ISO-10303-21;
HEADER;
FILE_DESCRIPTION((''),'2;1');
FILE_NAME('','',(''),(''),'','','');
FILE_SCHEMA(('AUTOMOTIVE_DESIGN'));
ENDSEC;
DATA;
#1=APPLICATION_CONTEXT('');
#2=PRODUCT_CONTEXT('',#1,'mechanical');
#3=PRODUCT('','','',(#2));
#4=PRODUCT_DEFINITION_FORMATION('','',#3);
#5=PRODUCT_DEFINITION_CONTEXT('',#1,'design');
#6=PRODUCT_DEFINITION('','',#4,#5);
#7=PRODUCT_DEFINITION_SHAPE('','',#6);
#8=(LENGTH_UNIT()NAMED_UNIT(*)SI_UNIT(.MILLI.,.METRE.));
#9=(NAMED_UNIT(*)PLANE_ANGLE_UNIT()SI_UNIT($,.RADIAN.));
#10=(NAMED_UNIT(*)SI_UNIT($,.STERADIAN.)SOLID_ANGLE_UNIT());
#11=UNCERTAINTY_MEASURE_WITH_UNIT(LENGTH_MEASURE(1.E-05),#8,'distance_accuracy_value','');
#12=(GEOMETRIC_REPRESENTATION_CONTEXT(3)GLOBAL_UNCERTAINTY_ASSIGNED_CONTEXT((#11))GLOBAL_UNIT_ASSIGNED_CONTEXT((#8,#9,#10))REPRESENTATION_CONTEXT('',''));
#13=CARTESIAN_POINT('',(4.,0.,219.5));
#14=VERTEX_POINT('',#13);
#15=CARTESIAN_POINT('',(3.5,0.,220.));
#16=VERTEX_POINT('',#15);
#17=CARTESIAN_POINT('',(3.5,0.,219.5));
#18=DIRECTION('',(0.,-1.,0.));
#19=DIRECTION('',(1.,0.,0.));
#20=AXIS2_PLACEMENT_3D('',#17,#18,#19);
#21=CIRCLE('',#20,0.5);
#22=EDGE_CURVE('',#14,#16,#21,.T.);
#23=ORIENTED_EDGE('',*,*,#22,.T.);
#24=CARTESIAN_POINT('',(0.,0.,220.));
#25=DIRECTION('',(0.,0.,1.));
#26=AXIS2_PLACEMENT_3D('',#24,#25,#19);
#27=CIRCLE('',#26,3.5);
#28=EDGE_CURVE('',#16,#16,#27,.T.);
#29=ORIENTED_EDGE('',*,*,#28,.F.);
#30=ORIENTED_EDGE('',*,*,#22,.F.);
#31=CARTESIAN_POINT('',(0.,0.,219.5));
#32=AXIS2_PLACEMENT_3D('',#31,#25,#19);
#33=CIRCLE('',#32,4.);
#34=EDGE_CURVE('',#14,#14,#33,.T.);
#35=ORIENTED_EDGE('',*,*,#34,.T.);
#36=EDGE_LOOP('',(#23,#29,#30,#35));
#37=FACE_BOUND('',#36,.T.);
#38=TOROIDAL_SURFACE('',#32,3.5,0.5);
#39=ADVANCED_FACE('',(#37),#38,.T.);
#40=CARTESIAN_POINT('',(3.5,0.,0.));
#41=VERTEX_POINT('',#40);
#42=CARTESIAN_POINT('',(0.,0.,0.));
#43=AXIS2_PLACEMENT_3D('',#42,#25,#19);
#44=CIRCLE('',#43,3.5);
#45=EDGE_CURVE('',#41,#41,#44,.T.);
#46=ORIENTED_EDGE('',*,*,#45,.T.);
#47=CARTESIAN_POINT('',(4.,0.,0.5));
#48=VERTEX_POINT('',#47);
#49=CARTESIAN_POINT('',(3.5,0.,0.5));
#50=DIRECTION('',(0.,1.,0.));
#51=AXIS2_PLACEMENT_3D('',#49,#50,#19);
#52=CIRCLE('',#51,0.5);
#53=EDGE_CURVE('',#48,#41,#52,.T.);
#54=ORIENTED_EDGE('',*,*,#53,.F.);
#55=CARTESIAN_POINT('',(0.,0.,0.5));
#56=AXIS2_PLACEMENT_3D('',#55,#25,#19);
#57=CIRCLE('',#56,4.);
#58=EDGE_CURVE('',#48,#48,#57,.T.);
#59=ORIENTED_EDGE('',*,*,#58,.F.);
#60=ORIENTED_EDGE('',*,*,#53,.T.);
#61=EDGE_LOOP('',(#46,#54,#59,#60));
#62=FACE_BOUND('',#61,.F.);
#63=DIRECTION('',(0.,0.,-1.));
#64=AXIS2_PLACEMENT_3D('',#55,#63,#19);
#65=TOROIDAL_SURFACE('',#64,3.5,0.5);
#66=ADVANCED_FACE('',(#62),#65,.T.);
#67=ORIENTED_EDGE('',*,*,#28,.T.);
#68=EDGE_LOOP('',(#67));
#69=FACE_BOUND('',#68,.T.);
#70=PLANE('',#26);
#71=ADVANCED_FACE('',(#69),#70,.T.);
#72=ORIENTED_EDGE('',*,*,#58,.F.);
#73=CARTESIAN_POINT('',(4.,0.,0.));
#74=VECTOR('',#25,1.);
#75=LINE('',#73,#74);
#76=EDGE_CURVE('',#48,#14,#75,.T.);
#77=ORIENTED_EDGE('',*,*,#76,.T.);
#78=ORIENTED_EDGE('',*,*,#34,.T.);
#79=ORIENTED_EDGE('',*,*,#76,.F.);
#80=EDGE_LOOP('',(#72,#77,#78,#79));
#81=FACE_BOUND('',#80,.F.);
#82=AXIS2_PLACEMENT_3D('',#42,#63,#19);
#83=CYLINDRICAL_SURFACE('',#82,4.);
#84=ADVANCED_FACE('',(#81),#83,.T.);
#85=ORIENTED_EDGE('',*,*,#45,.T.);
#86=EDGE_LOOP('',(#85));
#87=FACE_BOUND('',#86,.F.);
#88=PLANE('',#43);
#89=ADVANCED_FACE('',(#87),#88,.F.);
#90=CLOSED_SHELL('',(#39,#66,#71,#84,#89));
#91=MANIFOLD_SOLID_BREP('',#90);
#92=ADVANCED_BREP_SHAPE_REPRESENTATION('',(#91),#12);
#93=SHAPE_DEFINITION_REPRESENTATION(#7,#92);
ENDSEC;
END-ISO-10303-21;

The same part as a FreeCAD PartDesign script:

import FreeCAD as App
import Part
import Sketcher

V = App.Vector


def edges_at(feature, points):
    """Names of the edges that pass closest to the given points."""
    edges = feature.Shape.Edges
    near = lambda p: min(range(len(edges)), key=lambda i: edges[i].distToShape(Part.Vertex(*p))[0])
    return sorted({f"Edge{near(p) + 1}" for p in points})

doc = App.newDocument("Part")
params = doc.addObject("Spreadsheet::Sheet", "Params")
for row, (alias, value) in enumerate([
    ("sketch1_diameter", "8 mm"),
    ("pad1_length", "220 mm"),
    ("fillet_radius", "0.5 mm"),
], start=1):
    params.set(f"A{row}", alias)
    params.set(f"B{row}", "=" + value)
    params.setAlias(f"B{row}", alias)

body = doc.addObject("PartDesign::Body", "Body")

# Sketch on XY plane
sketch1 = doc.addObject("Sketcher::SketchObject", "Sketch")
body.addObject(sketch1)
sketch1.AttachmentSupport = (doc.XY_Plane, [""])
sketch1.MapMode = "FlatFace"
sketch1.addGeometry(Part.Circle(V(0, 0, 0), V(0, 0, 1), 4), False)
sketch1.addConstraint([
    Sketcher.Constraint("Coincident", 0, 3, -1, 1),
    Sketcher.Constraint("Diameter", 0, 8.0),
])
sketch1.setExpression("Constraints[1]", "Params.sketch1_diameter")
pad1 = doc.addObject("PartDesign::Pad", "Pad")
body.addObject(pad1)
pad1.Profile = sketch1
pad1.setExpression("Length", "Params.pad1_length")
doc.recompute()

fillet = doc.addObject("PartDesign::Fillet", "Fillet")
body.addObject(fillet)
fillet.Base = (pad1, edges_at(pad1, [(-4, 0, 220), (-4, 0, 0)]))
fillet.setExpression("Radius", "Params.fillet_radius")

doc.recompute()
